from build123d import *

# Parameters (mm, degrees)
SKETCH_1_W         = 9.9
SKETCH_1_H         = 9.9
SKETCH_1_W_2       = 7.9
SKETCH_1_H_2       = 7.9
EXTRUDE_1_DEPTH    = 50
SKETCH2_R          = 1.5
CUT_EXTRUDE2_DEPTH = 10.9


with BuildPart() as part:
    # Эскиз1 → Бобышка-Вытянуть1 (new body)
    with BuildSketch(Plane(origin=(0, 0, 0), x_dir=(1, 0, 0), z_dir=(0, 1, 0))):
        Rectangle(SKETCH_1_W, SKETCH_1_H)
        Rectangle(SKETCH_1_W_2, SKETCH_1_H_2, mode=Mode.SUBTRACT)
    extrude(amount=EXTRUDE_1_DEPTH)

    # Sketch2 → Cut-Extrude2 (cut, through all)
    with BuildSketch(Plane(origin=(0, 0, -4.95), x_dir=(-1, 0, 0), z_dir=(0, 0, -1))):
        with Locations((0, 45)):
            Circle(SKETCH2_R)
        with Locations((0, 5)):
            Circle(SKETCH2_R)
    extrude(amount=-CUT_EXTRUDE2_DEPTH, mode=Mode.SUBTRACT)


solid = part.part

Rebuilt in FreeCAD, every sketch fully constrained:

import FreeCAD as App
import Part
import Sketcher
from FreeCAD import Vector

doc = App.newDocument("Part")
body = doc.addObject("PartDesign::Body", "Body")

sketch1 = doc.addObject("Sketcher::SketchObject", "Sketch")
body.addObject(sketch1)
sketch1.AttachmentSupport = (doc.XZ_Plane, [""])
sketch1.MapMode = "FlatFace"
sketch1.addGeometry([
    Part.LineSegment(Vector(-5, -5, 0), Vector(-5, 5, 0)),
    Part.LineSegment(Vector(-5, 5, 0), Vector(5, 5, 0)),
    Part.LineSegment(Vector(5, 5, 0), Vector(5, -5, 0)),
    Part.LineSegment(Vector(5, -5, 0), Vector(-5, -5, 0)),
    Part.LineSegment(Vector(4, 4, 0), Vector(-4, 4, 0)),
    Part.LineSegment(Vector(-4, 4, 0), Vector(-4, -4, 0)),
    Part.LineSegment(Vector(-4, -4, 0), Vector(4, -4, 0)),
    Part.LineSegment(Vector(4, -4, 0), Vector(4, 4, 0)),
], False)
sketch1.addConstraint([
    Sketcher.Constraint("Coincident", 0, 2, 1, 1),
    Sketcher.Constraint("Coincident", 1, 2, 2, 1),
    Sketcher.Constraint("Coincident", 2, 2, 3, 1),
    Sketcher.Constraint("Coincident", 3, 2, 0, 1),
    Sketcher.Constraint("Coincident", 4, 2, 5, 1),
    Sketcher.Constraint("Coincident", 5, 2, 6, 1),
    Sketcher.Constraint("Coincident", 6, 2, 7, 1),
    Sketcher.Constraint("Coincident", 7, 2, 4, 1),
    Sketcher.Constraint("Vertical", 0),
    Sketcher.Constraint("Horizontal", 1),
    Sketcher.Constraint("Vertical", 2),
    Sketcher.Constraint("Horizontal", 3),
    Sketcher.Constraint("Horizontal", 4),
    Sketcher.Constraint("Vertical", 5),
    Sketcher.Constraint("Horizontal", 6),
    Sketcher.Constraint("Vertical", 7),
    Sketcher.Constraint("Symmetric", 0, 2, 2, 2, -1, 1),
    Sketcher.Constraint("Symmetric", 4, 2, 6, 2, -1, 1),
    Sketcher.Constraint("Equal", 3, 0),
    Sketcher.Constraint("Equal", 6, 5),
    Sketcher.Constraint("DistanceX", 1, 1, 1, 2, 9.9),
    Sketcher.Constraint("DistanceX", 4, 2, 4, 1, 7.9),
])
pad1 = doc.addObject("PartDesign::Pad", "Pad")
body.addObject(pad1)
pad1.Profile = sketch1
pad1.Length = 50
pad1.Reversed = True

sketch2 = doc.addObject("Sketcher::SketchObject", "Sketch001")
body.addObject(sketch2)
sketch2.AttachmentSupport = (doc.XY_Plane, [""])
sketch2.MapMode = "FlatFace"
sketch2.AttachmentOffset = App.Placement(Vector(0, 0, -4.95), App.Rotation())
sketch2.addGeometry([
    Part.Circle(Vector(0, 45, 0), Vector(0, 0, 1), 1.5),
    Part.Circle(Vector(0, 5, 0), Vector(0, 0, 1), 1.5),
], False)
sketch2.addConstraint([
    Sketcher.Constraint("Equal", 0, 1),
    Sketcher.Constraint("PointOnObject", 0, 3, -2),
    Sketcher.Constraint("PointOnObject", 1, 3, -2),
    Sketcher.Constraint("Diameter", 0, 3.0),
    Sketcher.Constraint("DistanceY", -1, 1, 0, 3, 45.0),
    Sketcher.Constraint("DistanceY", -1, 1, 1, 3, 5.0),
])
pocket1 = doc.addObject("PartDesign::Pocket", "Pocket")
body.addObject(pocket1)
pocket1.Profile = sketch2
pocket1.Type = "ThroughAll"
pocket1.Reversed = True

doc.recompute()
